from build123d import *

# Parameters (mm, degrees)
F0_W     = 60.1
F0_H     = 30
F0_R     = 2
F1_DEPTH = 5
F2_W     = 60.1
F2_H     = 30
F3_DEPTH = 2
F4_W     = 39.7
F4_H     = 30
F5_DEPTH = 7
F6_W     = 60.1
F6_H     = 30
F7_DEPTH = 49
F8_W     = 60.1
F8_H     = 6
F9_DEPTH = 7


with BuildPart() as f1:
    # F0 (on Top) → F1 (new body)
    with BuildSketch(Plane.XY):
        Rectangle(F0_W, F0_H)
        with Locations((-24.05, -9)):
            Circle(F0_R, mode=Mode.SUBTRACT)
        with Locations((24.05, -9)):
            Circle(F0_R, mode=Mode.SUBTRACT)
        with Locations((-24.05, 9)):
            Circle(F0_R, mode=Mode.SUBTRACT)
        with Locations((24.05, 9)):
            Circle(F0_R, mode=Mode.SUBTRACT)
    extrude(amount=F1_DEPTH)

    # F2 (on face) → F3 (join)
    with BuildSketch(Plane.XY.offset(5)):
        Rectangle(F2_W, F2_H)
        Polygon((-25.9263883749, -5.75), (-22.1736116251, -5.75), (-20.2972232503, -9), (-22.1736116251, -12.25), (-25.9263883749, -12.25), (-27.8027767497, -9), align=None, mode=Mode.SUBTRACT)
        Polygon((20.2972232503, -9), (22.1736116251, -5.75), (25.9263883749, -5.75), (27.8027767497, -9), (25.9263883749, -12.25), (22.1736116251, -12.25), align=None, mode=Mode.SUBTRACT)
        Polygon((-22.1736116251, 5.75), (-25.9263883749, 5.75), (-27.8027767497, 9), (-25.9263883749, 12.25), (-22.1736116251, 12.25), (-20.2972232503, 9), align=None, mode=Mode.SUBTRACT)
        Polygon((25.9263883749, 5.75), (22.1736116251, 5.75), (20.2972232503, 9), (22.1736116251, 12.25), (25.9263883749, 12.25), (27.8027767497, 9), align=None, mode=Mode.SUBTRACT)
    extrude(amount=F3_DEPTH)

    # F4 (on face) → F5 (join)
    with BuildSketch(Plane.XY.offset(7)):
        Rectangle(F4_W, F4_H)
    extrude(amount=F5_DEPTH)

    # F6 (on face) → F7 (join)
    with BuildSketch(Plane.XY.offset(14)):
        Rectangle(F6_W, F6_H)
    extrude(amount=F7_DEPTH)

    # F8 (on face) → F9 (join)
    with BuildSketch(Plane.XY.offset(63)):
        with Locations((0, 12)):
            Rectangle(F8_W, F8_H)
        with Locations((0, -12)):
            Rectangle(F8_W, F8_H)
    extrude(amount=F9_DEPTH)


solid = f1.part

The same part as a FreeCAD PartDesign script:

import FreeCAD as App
import Part
import Sketcher

V = App.Vector
Q = App.Units.Quantity

doc = App.newDocument("Part")
params = doc.addObject("Spreadsheet::Sheet", "Params")
for row, (alias, value) in enumerate([
    ("sketch1_diameter", "4 mm"),
    ("sketch1_height", "30 mm"),
    ("sketch1_width", "60.1 mm"),
    ("pad1_length", "5 mm"),
    ("sketch2_height", "30 mm"),
    ("sketch2_width", "60.1 mm"),
    ("pad2_length", "2 mm"),
    ("sketch3_height", "30 mm"),
    ("sketch3_width", "39.7 mm"),
    ("pad3_length", "7 mm"),
    ("sketch4_height", "30 mm"),
    ("sketch4_width", "60.1 mm"),
    ("pad4_length", "49 mm"),
    ("sketch5_height", "6 mm"),
    ("sketch5_width", "60.1 mm"),
    ("pad5_length", "7 mm"),
], start=1):
    params.set(f"A{row}", alias)
    params.set(f"B{row}", "=" + value)
    params.setAlias(f"B{row}", alias)

body = doc.addObject("PartDesign::Body", "Body")

# Sketch on XY plane
sketch1 = doc.addObject("Sketcher::SketchObject", "Sketch")
body.addObject(sketch1)
sketch1.AttachmentSupport = (doc.XY_Plane, [""])
sketch1.MapMode = "FlatFace"
sketch1.addGeometry(Part.LineSegment(V(-30.1, 15, 0), V(-30.1, -15, 0)), False)
sketch1.addGeometry(Part.LineSegment(V(-30.1, -15, 0), V(30.1, -15, 0)), False)
sketch1.addGeometry(Part.LineSegment(V(30.1, -15, 0), V(30.1, 15, 0)), False)
sketch1.addGeometry(Part.LineSegment(V(30.1, 15, 0), V(-30.1, 15, 0)), False)
sketch1.addGeometry(Part.Circle(V(-24.1, -9, 0), V(0, 0, 1), 2), False)
sketch1.addGeometry(Part.Circle(V(24.1, -9, 0), V(0, 0, 1), 2), False)
sketch1.addGeometry(Part.Circle(V(-24.1, 9, 0), V(0, 0, 1), 2), False)
sketch1.addGeometry(Part.Circle(V(24.1, 9, 0), V(0, 0, 1), 2), False)
sketch1.addConstraint(Sketcher.Constraint("Coincident", 0, 2, 1, 1))
sketch1.addConstraint(Sketcher.Constraint("Coincident", 1, 2, 2, 1))
sketch1.addConstraint(Sketcher.Constraint("Coincident", 2, 2, 3, 1))
sketch1.addConstraint(Sketcher.Constraint("Coincident", 3, 2, 0, 1))
sketch1.addConstraint(Sketcher.Constraint("Vertical", 0))
sketch1.addConstraint(Sketcher.Constraint("Horizontal", 1))
sketch1.addConstraint(Sketcher.Constraint("Vertical", 2))
sketch1.addConstraint(Sketcher.Constraint("Horizontal", 3))
sketch1.addConstraint(Sketcher.Constraint("Equal", 4, 5))
sketch1.addConstraint(Sketcher.Constraint("Equal", 5, 6))
sketch1.addConstraint(Sketcher.Constraint("Equal", 6, 7))
sketch1.addConstraint(Sketcher.Constraint("Symmetric", 5, 3, 6, 3, -1, 1))
sketch1.addConstraint(Sketcher.Constraint("Symmetric", 4, 3, 7, 3, -1, 1))
sketch1.addConstraint(Sketcher.Constraint("Symmetric", 0, 2, 2, 2, -1, 1))
sketch1.addConstraint(Sketcher.Constraint("Symmetric", 4, 3, 5, 3, -2))
sketch1.addConstraint(Sketcher.Constraint("Diameter", 4, Q("4 mm")))
sketch1.addConstraint(Sketcher.Constraint("DistanceY", 0, 2, 0, 1, Q("30 mm")))
sketch1.addConstraint(Sketcher.Constraint("DistanceX", 1, 1, 1, 2, Q("60.1 mm")))
sketch1.addConstraint(Sketcher.Constraint("DistanceY", 4, 3, -1, 1, Q("9 mm")))
sketch1.addConstraint(Sketcher.Constraint("DistanceX", 0, 2, 4, 3, Q("6 mm")))
sketch1.setExpression("Constraints[15]", "Params.sketch1_diameter")
sketch1.setExpression("Constraints[16]", "Params.sketch1_height")
sketch1.setExpression("Constraints[17]", "Params.sketch1_width")
pad1 = doc.addObject("PartDesign::Pad", "Pad")
body.addObject(pad1)
pad1.Profile = sketch1
pad1.setExpression("Length", "Params.pad1_length")

# Sketch on XY plane
sketch2 = doc.addObject("Sketcher::SketchObject", "Sketch001")
body.addObject(sketch2)
sketch2.AttachmentSupport = (doc.XY_Plane, [""])
sketch2.MapMode = "FlatFace"
sketch2.AttachmentOffset = App.Placement(V(0, 0, 5), App.Rotation())
sketch2.addGeometry(Part.LineSegment(V(-30.1, 15, 0), V(-30.1, -15, 0)), False)
sketch2.addGeometry(Part.LineSegment(V(-30.1, -15, 0), V(30.1, -15, 0)), False)
sketch2.addGeometry(Part.LineSegment(V(30.1, -15, 0), V(30.1, 15, 0)), False)
sketch2.addGeometry(Part.LineSegment(V(30.1, 15, 0), V(-30.1, 15, 0)), False)
sketch2.addGeometry(Part.LineSegment(V(-27.8, -9, 0), V(-25.9, -5.8, 0)), False)
sketch2.addGeometry(Part.LineSegment(V(-25.9, -5.8, 0), V(-22.2, -5.8, 0)), False)
sketch2.addGeometry(Part.LineSegment(V(-22.2, -5.8, 0), V(-20.3, -9, 0)), False)
sketch2.addGeometry(Part.LineSegment(V(-20.3, -9, 0), V(-22.2, -12.2, 0)), False)
sketch2.addGeometry(Part.LineSegment(V(-22.2, -12.2, 0), V(-25.9, -12.2, 0)), False)
sketch2.addGeometry(Part.LineSegment(V(-25.9, -12.2, 0), V(-27.8, -9, 0)), False)
sketch2.addGeometry(Part.LineSegment(V(22.2, -12.2, 0), V(20.3, -9, 0)), False)
sketch2.addGeometry(Part.LineSegment(V(20.3, -9, 0), V(22.2, -5.8, 0)), False)
sketch2.addGeometry(Part.LineSegment(V(22.2, -5.8, 0), V(25.9, -5.8, 0)), False)
sketch2.addGeometry(Part.LineSegment(V(25.9, -5.8, 0), V(27.8, -9, 0)), False)
sketch2.addGeometry(Part.LineSegment(V(27.8, -9, 0), V(25.9, -12.2, 0)), False)
sketch2.addGeometry(Part.LineSegment(V(25.9, -12.2, 0), V(22.2, -12.2, 0)), False)
sketch2.addGeometry(Part.LineSegment(V(-20.3, 9, 0), V(-22.2, 5.8, 0)), False)
sketch2.addGeometry(Part.LineSegment(V(-22.2, 5.8, 0), V(-25.9, 5.8, 0)), False)
sketch2.addGeometry(Part.LineSegment(V(-25.9, 5.8, 0), V(-27.8, 9, 0)), False)
sketch2.addGeometry(Part.LineSegment(V(-27.8, 9, 0), V(-25.9, 12.2, 0)), False)
sketch2.addGeometry(Part.LineSegment(V(-25.9, 12.2, 0), V(-22.2, 12.2, 0)), False)
sketch2.addGeometry(Part.LineSegment(V(-22.2, 12.2, 0), V(-20.3, 9, 0)), False)
sketch2.addGeometry(Part.LineSegment(V(27.8, 9, 0), V(25.9, 5.8, 0)), False)
sketch2.addGeometry(Part.LineSegment(V(25.9, 5.8, 0), V(22.2, 5.8, 0)), False)
sketch2.addGeometry(Part.LineSegment(V(22.2, 5.8, 0), V(20.3, 9, 0)), False)
sketch2.addGeometry(Part.LineSegment(V(20.3, 9, 0), V(22.2, 12.2, 0)), False)
sketch2.addGeometry(Part.LineSegment(V(22.2, 12.2, 0), V(25.9, 12.2, 0)), False)
sketch2.addGeometry(Part.LineSegment(V(25.9, 12.2, 0), V(27.8, 9, 0)), False)
sketch2.addConstraint(Sketcher.Constraint("Coincident", 0, 2, 1, 1))
sketch2.addConstraint(Sketcher.Constraint("Coincident", 1, 2, 2, 1))
sketch2.addConstraint(Sketcher.Constraint("Coincident", 2, 2, 3, 1))
sketch2.addConstraint(Sketcher.Constraint("Coincident", 3, 2, 0, 1))
sketch2.addConstraint(Sketcher.Constraint("Coincident", 4, 2, 5, 1))
sketch2.addConstraint(Sketcher.Constraint("Coincident", 5, 2, 6, 1))
sketch2.addConstraint(Sketcher.Constraint("Coincident", 6, 2, 7, 1))
sketch2.addConstraint(Sketcher.Constraint("Coincident", 7, 2, 8, 1))
sketch2.addConstraint(Sketcher.Constraint("Coincident", 8, 2, 9, 1))
sketch2.addConstraint(Sketcher.Constraint("Coincident", 9, 2, 4, 1))
sketch2.addConstraint(Sketcher.Constraint("Coincident", 10, 2, 11, 1))
sketch2.addConstraint(Sketcher.Constraint("Coincident", 11, 2, 12, 1))
sketch2.addConstraint(Sketcher.Constraint("Coincident", 12, 2, 13, 1))
sketch2.addConstraint(Sketcher.Constraint("Coincident", 13, 2, 14, 1))
sketch2.addConstraint(Sketcher.Constraint("Coincident", 14, 2, 15, 1))
sketch2.addConstraint(Sketcher.Constraint("Coincident", 15, 2, 10, 1))
sketch2.addConstraint(Sketcher.Constraint("Coincident", 16, 2, 17, 1))
sketch2.addConstraint(Sketcher.Constraint("Coincident", 17, 2, 18, 1))
sketch2.addConstraint(Sketcher.Constraint("Coincident", 18, 2, 19, 1))
sketch2.addConstraint(Sketcher.Constraint("Coincident", 19, 2, 20, 1))
sketch2.addConstraint(Sketcher.Constraint("Coincident", 20, 2, 21, 1))
sketch2.addConstraint(Sketcher.Constraint("Coincident", 21, 2, 16, 1))
sketch2.addConstraint(Sketcher.Constraint("Coincident", 22, 2, 23, 1))
sketch2.addConstraint(Sketcher.Constraint("Coincident", 23, 2, 24, 1))
sketch2.addConstraint(Sketcher.Constraint("Coincident", 24, 2, 25, 1))
sketch2.addConstraint(Sketcher.Constraint("Coincident", 25, 2, 26, 1))
sketch2.addConstraint(Sketcher.Constraint("Coincident", 26, 2, 27, 1))
sketch2.addConstraint(Sketcher.Constraint("Coincident", 27, 2, 22, 1))
sketch2.addConstraint(Sketcher.Constraint("Vertical", 0))
sketch2.addConstraint(Sketcher.Constraint("Horizontal", 1))
sketch2.addConstraint(Sketcher.Constraint("Vertical", 2))
sketch2.addConstraint(Sketcher.Constraint("Horizontal", 3))
sketch2.addConstraint(Sketcher.Constraint("Horizontal", 5))
sketch2.addConstraint(Sketcher.Constraint("Horizontal", 8))
sketch2.addConstraint(Sketcher.Constraint("Horizontal", 12))
sketch2.addConstraint(Sketcher.Constraint("Horizontal", 15))
sketch2.addConstraint(Sketcher.Constraint("Horizontal", 17))
sketch2.addConstraint(Sketcher.Constraint("Horizontal", 20))
sketch2.addConstraint(Sketcher.Constraint("Horizontal", 23))
sketch2.addConstraint(Sketcher.Constraint("Horizontal", 26))
sketch2.addConstraint(Sketcher.Constraint("Symmetric", 0, 2, 2, 2, -1, 1))
sketch2.addConstraint(Sketcher.Constraint("Symmetric", 11, 2, 16, 2, -1, 1))
sketch2.addConstraint(Sketcher.Constraint("Symmetric", 13, 2, 18, 2, -1, 1))
sketch2.addConstraint(Sketcher.Constraint("Symmetric", 14, 2, 19, 2, -1, 1))
sketch2.addConstraint(Sketcher.Constraint("Symmetric", 10, 2, 21, 2, -1, 1))
sketch2.addConstraint(Sketcher.Constraint("Symmetric", 4, 2, 22, 2, -1, 1))
sketch2.addConstraint(Sketcher.Constraint("Symmetric", 6, 2, 24, 2, -1, 1))
sketch2.addConstraint(Sketcher.Constraint("Symmetric", 7, 2, 25, 2, -1, 1))
sketch2.addConstraint(Sketcher.Constraint("Symmetric", 9, 2, 27, 2, -1, 1))
sketch2.addConstraint(Sketcher.Constraint("Symmetric", 6, 2, 10, 2, -2))
sketch2.addConstraint(Sketcher.Constraint("Symmetric", 5, 2, 11, 2, -2))
sketch2.addConstraint(Sketcher.Constraint("Symmetric", 9, 2, 13, 2, -2))
sketch2.addConstraint(Sketcher.Constraint("Symmetric", 8, 2, 14, 2, -2))
sketch2.addConstraint(Sketcher.Constraint("Parallel", 4, 7))
sketch2.addConstraint(Sketcher.Constraint("Parallel", 6, 9))
sketch2.addConstraint(Sketcher.Constraint("Parallel", 9, 10))
sketch2.addConstraint(Sketcher.Constraint("Parallel", 7, 11))
sketch2.addConstraint(Sketcher.Constraint("Parallel", 10, 13))
sketch2.addConstraint(Sketcher.Constraint("Parallel", 13, 18))
sketch2.addConstraint(Sketcher.Constraint("Parallel", 18, 21))
sketch2.addConstraint(Sketcher.Constraint("Parallel", 21, 24))
sketch2.addConstraint(Sketcher.Constraint("Parallel", 24, 27))
sketch2.addConstraint(Sketcher.Constraint("Horizontal", 6, 2, 9, 2))
sketch2.addConstraint(Sketcher.Constraint("Vertical", 5, 2, 7, 2))
sketch2.addConstraint(Sketcher.Constraint("DistanceY", 0, 2, 0, 1, Q("30 mm")))
sketch2.addConstraint(Sketcher.Constraint("Angle", 4, Q("60 deg")))
sketch2.addConstraint(Sketcher.Constraint("DistanceX", 1, 1, 1, 2, Q("60.1 mm")))
sketch2.addConstraint(Sketcher.Constraint("DistanceY", 6, 2, -1, 1, Q("9 mm")))
sketch2.addConstraint(Sketcher.Constraint("DistanceY", 7, 2, 5, 2, Q("6.5 mm")))
sketch2.addConstraint(Sketcher.Constraint("DistanceX", 5, 1, 5, 2, Q("3.752777 mm")))
sketch2.addConstraint(Sketcher.Constraint("DistanceX", 4, 2, -1, 1, Q("25.926388 mm")))
sketch2.setExpression("Constraints[64]", "Params.sketch2_height")
sketch2.setExpression("Constraints[66]", "Params.sketch2_width")
pad2 = doc.addObject("PartDesign::Pad", "Pad001")
body.addObject(pad2)
pad2.Profile = sketch2
pad2.setExpression("Length", "Params.pad2_length")

# Sketch on XY plane
sketch3 = doc.addObject("Sketcher::SketchObject", "Sketch002")
body.addObject(sketch3)
sketch3.AttachmentSupport = (doc.XY_Plane, [""])
sketch3.MapMode = "FlatFace"
sketch3.AttachmentOffset = App.Placement(V(0, 0, 7), App.Rotation())
sketch3.addGeometry(Part.LineSegment(V(-20, 15, 0), V(-20, -15, 0)), False)
sketch3.addGeometry(Part.LineSegment(V(-20, -15, 0), V(20, -15, 0)), False)
sketch3.addGeometry(Part.LineSegment(V(20, -15, 0), V(20, 15, 0)), False)
sketch3.addGeometry(Part.LineSegment(V(20, 15, 0), V(-20, 15, 0)), False)
sketch3.addConstraint(Sketcher.Constraint("Coincident", 0, 2, 1, 1))
sketch3.addConstraint(Sketcher.Constraint("Coincident", 1, 2, 2, 1))
sketch3.addConstraint(Sketcher.Constraint("Coincident", 2, 2, 3, 1))
sketch3.addConstraint(Sketcher.Constraint("Coincident", 3, 2, 0, 1))
sketch3.addConstraint(Sketcher.Constraint("Vertical", 0))
sketch3.addConstraint(Sketcher.Constraint("Horizontal", 1))
sketch3.addConstraint(Sketcher.Constraint("Vertical", 2))
sketch3.addConstraint(Sketcher.Constraint("Horizontal", 3))
sketch3.addConstraint(Sketcher.Constraint("Symmetric", 0, 2, 2, 2, -1, 1))
sketch3.addConstraint(Sketcher.Constraint("DistanceY", 0, 2, 0, 1, Q("30 mm")))
sketch3.addConstraint(Sketcher.Constraint("DistanceX", 1, 1, 1, 2, Q("39.7 mm")))
sketch3.setExpression("Constraints[9]", "Params.sketch3_height")
sketch3.setExpression("Constraints[10]", "Params.sketch3_width")
pad3 = doc.addObject("PartDesign::Pad", "Pad002")
body.addObject(pad3)
pad3.Profile = sketch3
pad3.setExpression("Length", "Params.pad3_length")

# Sketch on XY plane
sketch4 = doc.addObject("Sketcher::SketchObject", "Sketch003")
body.addObject(sketch4)
sketch4.AttachmentSupport = (doc.XY_Plane, [""])
sketch4.MapMode = "FlatFace"
sketch4.AttachmentOffset = App.Placement(V(0, 0, 14), App.Rotation())
sketch4.addGeometry(Part.LineSegment(V(-30, 15, 0), V(-30, -15, 0)), False)
sketch4.addGeometry(Part.LineSegment(V(-30, -15, 0), V(30, -15, 0)), False)
sketch4.addGeometry(Part.LineSegment(V(30, -15, 0), V(30, 15, 0)), False)
sketch4.addGeometry(Part.LineSegment(V(30, 15, 0), V(-30, 15, 0)), False)
sketch4.addConstraint(Sketcher.Constraint("Coincident", 0, 2, 1, 1))
sketch4.addConstraint(Sketcher.Constraint("Coincident", 1, 2, 2, 1))
sketch4.addConstraint(Sketcher.Constraint("Coincident", 2, 2, 3, 1))
sketch4.addConstraint(Sketcher.Constraint("Coincident", 3, 2, 0, 1))
sketch4.addConstraint(Sketcher.Constraint("Vertical", 0))
sketch4.addConstraint(Sketcher.Constraint("Horizontal", 1))
sketch4.addConstraint(Sketcher.Constraint("Vertical", 2))
sketch4.addConstraint(Sketcher.Constraint("Horizontal", 3))
sketch4.addConstraint(Sketcher.Constraint("Symmetric", 0, 2, 2, 2, -1, 1))
sketch4.addConstraint(Sketcher.Constraint("DistanceY", 0, 2, 0, 1, Q("30 mm")))
sketch4.addConstraint(Sketcher.Constraint("DistanceX", 1, 1, 1, 2, Q("60.1 mm")))
sketch4.setExpression("Constraints[9]", "Params.sketch4_height")
sketch4.setExpression("Constraints[10]", "Params.sketch4_width")
pad4 = doc.addObject("PartDesign::Pad", "Pad003")
body.addObject(pad4)
pad4.Profile = sketch4
pad4.setExpression("Length", "Params.pad4_length")

# Sketch on XY plane
sketch5 = doc.addObject("Sketcher::SketchObject", "Sketch004")
body.addObject(sketch5)
sketch5.AttachmentSupport = (doc.XY_Plane, [""])
sketch5.MapMode = "FlatFace"
sketch5.AttachmentOffset = App.Placement(V(0, 0, 63), App.Rotation())
sketch5.addGeometry(Part.LineSegment(V(-30, 15, 0), V(-30, 9, 0)), False)
sketch5.addGeometry(Part.LineSegment(V(-30, 9, 0), V(30, 9, 0)), False)
sketch5.addGeometry(Part.LineSegment(V(30, 9, 0), V(30, 15, 0)), False)
sketch5.addGeometry(Part.LineSegment(V(30, 15, 0), V(-30, 15, 0)), False)
sketch5.addGeometry(Part.LineSegment(V(-30, -9, 0), V(-30, -15, 0)), False)
sketch5.addGeometry(Part.LineSegment(V(-30, -15, 0), V(30, -15, 0)), False)
sketch5.addGeometry(Part.LineSegment(V(30, -15, 0), V(30, -9, 0)), False)
sketch5.addGeometry(Part.LineSegment(V(30, -9, 0), V(-30, -9, 0)), False)
sketch5.addConstraint(Sketcher.Constraint("Coincident", 0, 2, 1, 1))
sketch5.addConstraint(Sketcher.Constraint("Coincident", 1, 2, 2, 1))
sketch5.addConstraint(Sketcher.Constraint("Coincident", 2, 2, 3, 1))
sketch5.addConstraint(Sketcher.Constraint("Coincident", 3, 2, 0, 1))
sketch5.addConstraint(Sketcher.Constraint("Coincident", 4, 2, 5, 1))
sketch5.addConstraint(Sketcher.Constraint("Coincident", 5, 2, 6, 1))
sketch5.addConstraint(Sketcher.Constraint("Coincident", 6, 2, 7, 1))
sketch5.addConstraint(Sketcher.Constraint("Coincident", 7, 2, 4, 1))
sketch5.addConstraint(Sketcher.Constraint("Vertical", 0))
sketch5.addConstraint(Sketcher.Constraint("Horizontal", 1))
sketch5.addConstraint(Sketcher.Constraint("Vertical", 2))
sketch5.addConstraint(Sketcher.Constraint("Horizontal", 3))
sketch5.addConstraint(Sketcher.Constraint("Vertical", 4))
sketch5.addConstraint(Sketcher.Constraint("Horizontal", 5))
sketch5.addConstraint(Sketcher.Constraint("Vertical", 6))
sketch5.addConstraint(Sketcher.Constraint("Horizontal", 7))
sketch5.addConstraint(Sketcher.Constraint("Symmetric", 2, 2, 4, 2, -1, 1))
sketch5.addConstraint(Sketcher.Constraint("Symmetric", 0, 2, 6, 2, -1, 1))
sketch5.addConstraint(Sketcher.Constraint("Vertical", 3, 2, 4, 2))
sketch5.addConstraint(Sketcher.Constraint("DistanceY", 0, 2, 0, 1, Q("6 mm")))
sketch5.addConstraint(Sketcher.Constraint("DistanceX", 1, 1, 1, 2, Q("60.1 mm")))
sketch5.addConstraint(Sketcher.Constraint("DistanceY", -1, 1, 0, 2, Q("9 mm")))
sketch5.setExpression("Constraints[19]", "Params.sketch5_height")
sketch5.setExpression("Constraints[20]", "Params.sketch5_width")
pad5 = doc.addObject("PartDesign::Pad", "Pad004")
body.addObject(pad5)
pad5.Profile = sketch5
pad5.setExpression("Length", "Params.pad5_length")

doc.recompute()
